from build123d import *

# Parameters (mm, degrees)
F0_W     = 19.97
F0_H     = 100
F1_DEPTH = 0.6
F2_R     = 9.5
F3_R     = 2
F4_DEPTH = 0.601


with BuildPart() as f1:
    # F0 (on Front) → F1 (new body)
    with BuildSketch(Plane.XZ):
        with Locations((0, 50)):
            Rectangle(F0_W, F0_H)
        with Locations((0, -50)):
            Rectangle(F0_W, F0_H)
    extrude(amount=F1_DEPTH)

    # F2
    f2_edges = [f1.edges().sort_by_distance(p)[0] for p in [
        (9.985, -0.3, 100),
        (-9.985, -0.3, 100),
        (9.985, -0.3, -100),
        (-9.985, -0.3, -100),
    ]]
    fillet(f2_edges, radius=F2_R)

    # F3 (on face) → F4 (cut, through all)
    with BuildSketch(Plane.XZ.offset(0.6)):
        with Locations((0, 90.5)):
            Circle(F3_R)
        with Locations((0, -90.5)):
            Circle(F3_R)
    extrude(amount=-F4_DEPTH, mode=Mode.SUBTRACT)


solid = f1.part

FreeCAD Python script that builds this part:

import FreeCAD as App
import Part
import Sketcher


def edges_at(feature, points):
    """Names of the edges that pass closest to the given points."""
    edges = feature.Shape.Edges
    near = lambda p: min(range(len(edges)), key=lambda i: edges[i].distToShape(Part.Vertex(*p))[0])
    return sorted({f"Edge{near(p) + 1}" for p in points})

doc = App.newDocument("Part")
body = doc.addObject("PartDesign::Body", "Body")

# Sketch on XZ plane
sketch1 = doc.addObject("Sketcher::SketchObject", "Sketch")
body.addObject(sketch1)
sketch1.AttachmentSupport = (doc.XZ_Plane, [""])
sketch1.MapMode = "FlatFace"
sketch1.addGeometry([
    Part.LineSegment(App.Vector(-9.985, 100, 0), App.Vector(-9.985, -100, 0)),
    Part.LineSegment(App.Vector(-9.985, -100, 0), App.Vector(9.985, -100, 0)),
    Part.LineSegment(App.Vector(9.985, -100, 0), App.Vector(9.985, 100, 0)),
    Part.LineSegment(App.Vector(9.985, 100, 0), App.Vector(-9.985, 100, 0)),
], False)
sketch1.addConstraint([
    Sketcher.Constraint("Coincident", 0, 2, 1, 1),
    Sketcher.Constraint("Coincident", 1, 2, 2, 1),
    Sketcher.Constraint("Coincident", 2, 2, 3, 1),
    Sketcher.Constraint("Coincident", 3, 2, 0, 1),
    Sketcher.Constraint("Vertical", 0),
    Sketcher.Constraint("Horizontal", 1),
    Sketcher.Constraint("Vertical", 2),
    Sketcher.Constraint("Horizontal", 3),
    Sketcher.Constraint("Symmetric", 0, 2, 2, 2, -1, 1),
    Sketcher.Constraint("DistanceY", 0, 2, 0, 1, 200.0),
    Sketcher.Constraint("DistanceX", 1, 1, 1, 2, 19.97),
])
pad1 = doc.addObject("PartDesign::Pad", "Pad")
body.addObject(pad1)
pad1.Profile = sketch1
pad1.Length = 0.6
doc.recompute()

fillet = doc.addObject("PartDesign::Fillet", "Fillet")
body.addObject(fillet)
fillet.Base = (pad1, edges_at(pad1, [
    (9.985, -0.3, 100),
    (-9.985, -0.3, 100),
    (9.985, -0.3, -100),
    (-9.985, -0.3, -100),
]))
fillet.Radius = 9.5

# Sketch on XZ plane
sketch2 = doc.addObject("Sketcher::SketchObject", "Sketch001")
body.addObject(sketch2)
sketch2.AttachmentSupport = (doc.XZ_Plane, [""])
sketch2.MapMode = "FlatFace"
sketch2.AttachmentOffset = App.Placement(App.Vector(0, 0, 0.6), App.Rotation())
sketch2.addGeometry([
    Part.Circle(App.Vector(0, 90.5, 0), App.Vector(0, 0, 1), 2),
    Part.Circle(App.Vector(0, -90.5, 0), App.Vector(0, 0, 1), 2),
], False)
sketch2.addConstraint([
    Sketcher.Constraint("Equal", 0, 1),
    Sketcher.Constraint("Symmetric", 0, 3, 1, 3, -1, 1),
    Sketcher.Constraint("PointOnObject", 0, 3, -2),
    Sketcher.Constraint("Diameter", 0, 4.0),
    Sketcher.Constraint("DistanceY", 1, 3, 0, 3, 181.0),
])
pocket1 = doc.addObject("PartDesign::Pocket", "Pocket")
body.addObject(pocket1)
pocket1.Profile = sketch2
pocket1.Type = "ThroughAll"

doc.recompute()
